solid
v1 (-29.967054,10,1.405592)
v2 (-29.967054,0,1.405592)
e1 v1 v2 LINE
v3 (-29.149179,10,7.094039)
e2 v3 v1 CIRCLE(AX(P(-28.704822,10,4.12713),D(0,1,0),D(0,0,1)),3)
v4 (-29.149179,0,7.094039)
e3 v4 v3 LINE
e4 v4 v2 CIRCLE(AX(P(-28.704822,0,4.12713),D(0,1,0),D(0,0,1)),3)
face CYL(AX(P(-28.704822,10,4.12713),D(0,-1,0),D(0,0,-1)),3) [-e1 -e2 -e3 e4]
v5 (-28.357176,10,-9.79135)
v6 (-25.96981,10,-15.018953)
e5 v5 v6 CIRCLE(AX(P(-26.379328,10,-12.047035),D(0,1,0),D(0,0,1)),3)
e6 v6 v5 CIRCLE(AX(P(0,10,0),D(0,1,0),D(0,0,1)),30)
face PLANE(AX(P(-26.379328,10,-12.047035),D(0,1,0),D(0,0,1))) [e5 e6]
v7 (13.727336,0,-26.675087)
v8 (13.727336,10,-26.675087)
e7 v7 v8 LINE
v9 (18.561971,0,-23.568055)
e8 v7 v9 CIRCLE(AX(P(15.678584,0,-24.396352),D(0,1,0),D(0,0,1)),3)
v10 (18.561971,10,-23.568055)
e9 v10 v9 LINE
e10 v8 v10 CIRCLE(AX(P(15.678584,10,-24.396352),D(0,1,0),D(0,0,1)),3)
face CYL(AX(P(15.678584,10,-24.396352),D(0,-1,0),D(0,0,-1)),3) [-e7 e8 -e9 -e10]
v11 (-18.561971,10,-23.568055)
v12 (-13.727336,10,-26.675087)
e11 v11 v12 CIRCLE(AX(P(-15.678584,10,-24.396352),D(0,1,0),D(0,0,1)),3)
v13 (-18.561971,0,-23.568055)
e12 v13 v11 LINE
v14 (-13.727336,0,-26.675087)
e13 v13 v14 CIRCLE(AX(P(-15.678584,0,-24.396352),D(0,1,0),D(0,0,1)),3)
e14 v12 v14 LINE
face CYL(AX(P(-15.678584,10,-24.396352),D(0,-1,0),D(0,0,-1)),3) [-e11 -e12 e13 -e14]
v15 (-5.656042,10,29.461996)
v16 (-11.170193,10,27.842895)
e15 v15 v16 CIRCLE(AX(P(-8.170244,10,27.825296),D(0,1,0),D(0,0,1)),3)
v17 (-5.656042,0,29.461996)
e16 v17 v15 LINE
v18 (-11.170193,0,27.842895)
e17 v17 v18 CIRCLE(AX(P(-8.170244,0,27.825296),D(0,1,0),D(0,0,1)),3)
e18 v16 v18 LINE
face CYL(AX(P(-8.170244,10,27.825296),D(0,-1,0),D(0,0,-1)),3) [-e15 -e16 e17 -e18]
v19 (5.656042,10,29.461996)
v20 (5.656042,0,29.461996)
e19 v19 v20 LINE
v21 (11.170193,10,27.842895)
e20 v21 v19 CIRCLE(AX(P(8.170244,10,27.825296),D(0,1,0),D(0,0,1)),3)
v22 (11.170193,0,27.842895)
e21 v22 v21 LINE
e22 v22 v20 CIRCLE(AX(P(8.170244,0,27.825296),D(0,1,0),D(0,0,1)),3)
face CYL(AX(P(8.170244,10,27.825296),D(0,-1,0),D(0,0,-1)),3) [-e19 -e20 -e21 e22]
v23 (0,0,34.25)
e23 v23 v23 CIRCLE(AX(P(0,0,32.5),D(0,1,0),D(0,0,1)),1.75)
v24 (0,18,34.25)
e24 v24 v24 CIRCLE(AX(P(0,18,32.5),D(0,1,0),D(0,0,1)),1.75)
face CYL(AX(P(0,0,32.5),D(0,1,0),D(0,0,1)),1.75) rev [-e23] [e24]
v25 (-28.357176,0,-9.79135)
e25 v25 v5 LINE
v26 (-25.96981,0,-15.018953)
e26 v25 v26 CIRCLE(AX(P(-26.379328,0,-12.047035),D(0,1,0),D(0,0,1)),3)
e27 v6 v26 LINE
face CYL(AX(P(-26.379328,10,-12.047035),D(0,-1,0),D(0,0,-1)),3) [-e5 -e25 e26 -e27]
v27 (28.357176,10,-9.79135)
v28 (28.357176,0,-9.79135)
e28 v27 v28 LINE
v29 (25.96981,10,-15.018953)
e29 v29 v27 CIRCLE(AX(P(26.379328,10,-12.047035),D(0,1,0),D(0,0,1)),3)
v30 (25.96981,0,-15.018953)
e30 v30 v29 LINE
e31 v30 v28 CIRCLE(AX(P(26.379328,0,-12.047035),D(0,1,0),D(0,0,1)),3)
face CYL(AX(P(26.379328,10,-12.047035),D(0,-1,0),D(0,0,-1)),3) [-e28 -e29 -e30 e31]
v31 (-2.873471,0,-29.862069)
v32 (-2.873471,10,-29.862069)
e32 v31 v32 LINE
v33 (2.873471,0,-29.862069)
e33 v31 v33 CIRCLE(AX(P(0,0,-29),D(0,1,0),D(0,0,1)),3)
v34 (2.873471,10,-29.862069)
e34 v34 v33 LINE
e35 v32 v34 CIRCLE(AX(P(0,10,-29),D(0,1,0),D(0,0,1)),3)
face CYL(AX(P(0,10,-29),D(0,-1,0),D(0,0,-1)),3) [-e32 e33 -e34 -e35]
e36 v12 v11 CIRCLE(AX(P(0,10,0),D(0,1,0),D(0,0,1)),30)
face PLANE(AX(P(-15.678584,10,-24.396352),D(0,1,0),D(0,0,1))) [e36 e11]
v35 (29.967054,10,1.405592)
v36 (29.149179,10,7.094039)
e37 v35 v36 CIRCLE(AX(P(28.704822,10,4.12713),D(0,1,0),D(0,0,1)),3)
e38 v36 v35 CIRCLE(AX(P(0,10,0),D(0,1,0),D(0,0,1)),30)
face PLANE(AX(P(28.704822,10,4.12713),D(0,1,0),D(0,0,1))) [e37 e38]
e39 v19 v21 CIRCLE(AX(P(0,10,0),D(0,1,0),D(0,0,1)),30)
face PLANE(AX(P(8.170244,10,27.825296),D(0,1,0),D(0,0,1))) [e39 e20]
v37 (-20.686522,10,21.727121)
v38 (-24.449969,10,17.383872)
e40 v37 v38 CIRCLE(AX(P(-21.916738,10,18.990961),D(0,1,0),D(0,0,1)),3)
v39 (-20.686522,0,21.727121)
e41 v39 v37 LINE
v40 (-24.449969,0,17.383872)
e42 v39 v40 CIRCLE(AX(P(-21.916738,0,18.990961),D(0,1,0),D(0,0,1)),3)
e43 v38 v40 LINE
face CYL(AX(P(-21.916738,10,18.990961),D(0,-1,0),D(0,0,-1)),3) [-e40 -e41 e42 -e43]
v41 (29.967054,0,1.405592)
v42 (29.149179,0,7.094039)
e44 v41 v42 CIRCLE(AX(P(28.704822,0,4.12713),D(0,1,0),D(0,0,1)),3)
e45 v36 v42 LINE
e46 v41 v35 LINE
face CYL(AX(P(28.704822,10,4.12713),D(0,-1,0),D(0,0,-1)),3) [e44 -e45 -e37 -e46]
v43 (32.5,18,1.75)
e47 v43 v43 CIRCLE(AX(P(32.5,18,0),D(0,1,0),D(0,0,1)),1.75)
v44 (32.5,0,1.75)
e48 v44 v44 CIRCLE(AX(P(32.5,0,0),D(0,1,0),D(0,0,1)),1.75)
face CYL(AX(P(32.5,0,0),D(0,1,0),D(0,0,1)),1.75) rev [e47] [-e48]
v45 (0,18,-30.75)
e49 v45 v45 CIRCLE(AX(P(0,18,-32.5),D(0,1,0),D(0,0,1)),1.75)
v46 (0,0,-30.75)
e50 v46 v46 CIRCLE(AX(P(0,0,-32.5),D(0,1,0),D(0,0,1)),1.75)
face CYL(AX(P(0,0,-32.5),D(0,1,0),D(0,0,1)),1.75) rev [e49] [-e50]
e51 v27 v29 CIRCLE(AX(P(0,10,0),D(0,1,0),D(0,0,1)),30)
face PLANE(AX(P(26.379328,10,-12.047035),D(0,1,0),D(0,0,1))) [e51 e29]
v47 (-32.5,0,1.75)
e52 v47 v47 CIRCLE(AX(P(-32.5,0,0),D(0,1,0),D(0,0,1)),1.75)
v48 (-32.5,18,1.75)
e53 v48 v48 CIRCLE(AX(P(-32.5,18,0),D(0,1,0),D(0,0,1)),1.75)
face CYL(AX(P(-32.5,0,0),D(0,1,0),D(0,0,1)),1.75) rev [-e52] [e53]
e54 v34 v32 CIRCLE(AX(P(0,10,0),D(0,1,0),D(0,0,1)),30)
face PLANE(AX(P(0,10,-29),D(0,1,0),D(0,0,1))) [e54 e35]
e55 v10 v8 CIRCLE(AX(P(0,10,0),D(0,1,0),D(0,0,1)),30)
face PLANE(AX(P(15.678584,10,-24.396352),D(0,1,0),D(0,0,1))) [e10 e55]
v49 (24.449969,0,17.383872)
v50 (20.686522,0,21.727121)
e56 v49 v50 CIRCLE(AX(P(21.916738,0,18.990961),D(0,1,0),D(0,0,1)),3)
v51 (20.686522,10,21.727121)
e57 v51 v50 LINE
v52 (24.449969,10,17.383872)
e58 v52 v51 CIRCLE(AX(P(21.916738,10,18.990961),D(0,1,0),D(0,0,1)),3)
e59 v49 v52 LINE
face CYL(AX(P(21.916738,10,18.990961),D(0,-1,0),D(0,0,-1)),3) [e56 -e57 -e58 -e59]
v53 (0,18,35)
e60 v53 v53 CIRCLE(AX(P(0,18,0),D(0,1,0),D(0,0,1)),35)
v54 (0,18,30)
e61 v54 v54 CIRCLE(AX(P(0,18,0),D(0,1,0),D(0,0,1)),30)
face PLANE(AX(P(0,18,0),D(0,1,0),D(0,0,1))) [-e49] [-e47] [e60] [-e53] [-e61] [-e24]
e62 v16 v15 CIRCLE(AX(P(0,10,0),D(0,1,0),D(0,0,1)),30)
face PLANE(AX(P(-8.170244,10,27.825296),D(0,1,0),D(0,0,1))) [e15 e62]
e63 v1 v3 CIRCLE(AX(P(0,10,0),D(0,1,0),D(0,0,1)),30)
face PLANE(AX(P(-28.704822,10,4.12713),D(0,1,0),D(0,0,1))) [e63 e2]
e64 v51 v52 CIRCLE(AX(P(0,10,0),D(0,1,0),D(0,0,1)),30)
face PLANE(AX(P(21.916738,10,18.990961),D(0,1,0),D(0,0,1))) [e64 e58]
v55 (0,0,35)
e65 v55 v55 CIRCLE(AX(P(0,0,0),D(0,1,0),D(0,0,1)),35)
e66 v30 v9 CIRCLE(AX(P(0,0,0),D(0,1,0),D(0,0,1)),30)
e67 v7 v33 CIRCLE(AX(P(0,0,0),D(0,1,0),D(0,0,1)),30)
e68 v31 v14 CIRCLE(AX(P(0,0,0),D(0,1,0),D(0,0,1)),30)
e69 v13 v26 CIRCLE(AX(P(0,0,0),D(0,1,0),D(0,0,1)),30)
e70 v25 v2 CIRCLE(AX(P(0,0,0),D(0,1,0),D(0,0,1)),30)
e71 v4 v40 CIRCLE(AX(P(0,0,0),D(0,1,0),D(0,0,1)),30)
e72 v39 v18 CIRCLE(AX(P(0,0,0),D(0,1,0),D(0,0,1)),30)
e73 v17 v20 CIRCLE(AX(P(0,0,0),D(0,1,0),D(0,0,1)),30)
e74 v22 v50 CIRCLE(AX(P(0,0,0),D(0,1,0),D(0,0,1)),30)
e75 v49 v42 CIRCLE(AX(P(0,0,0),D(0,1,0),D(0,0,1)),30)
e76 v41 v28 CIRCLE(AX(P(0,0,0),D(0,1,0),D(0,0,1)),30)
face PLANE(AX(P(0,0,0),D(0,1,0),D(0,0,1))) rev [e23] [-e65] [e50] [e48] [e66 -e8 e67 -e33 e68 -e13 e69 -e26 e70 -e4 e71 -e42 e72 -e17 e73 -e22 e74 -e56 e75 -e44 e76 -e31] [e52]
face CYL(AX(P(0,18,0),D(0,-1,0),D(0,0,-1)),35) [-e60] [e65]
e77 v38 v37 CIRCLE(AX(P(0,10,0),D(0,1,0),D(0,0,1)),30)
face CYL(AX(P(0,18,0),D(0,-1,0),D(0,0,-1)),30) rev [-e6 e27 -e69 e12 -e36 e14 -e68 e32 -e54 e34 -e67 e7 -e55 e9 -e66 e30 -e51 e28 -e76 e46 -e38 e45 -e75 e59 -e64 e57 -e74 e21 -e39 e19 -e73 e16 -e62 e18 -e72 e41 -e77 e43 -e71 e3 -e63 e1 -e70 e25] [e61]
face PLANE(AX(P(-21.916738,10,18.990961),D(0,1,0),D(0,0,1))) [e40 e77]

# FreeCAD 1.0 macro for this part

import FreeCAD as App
import Part
import Sketcher

V = App.Vector

doc = App.newDocument("Part")
body = doc.addObject("PartDesign::Body", "Body")

sketch1 = body.newObject("Sketcher::SketchObject", "Sketch")
sketch1.AttachmentSupport = (doc.getObject("XZ_Plane"), [""])
sketch1.MapMode = "FlatFace"
sketch1.addGeometry(Part.Circle(V(0, 0, 0), V(0, 0, 1), 35), False)
sketch1.addGeometry(Part.Circle(V(0, 0, 0), V(0, 0, 1), 30), False)
sketch1.addConstraint(Sketcher.Constraint("Coincident", 0, 3, -1, 1))
sketch1.addConstraint(Sketcher.Constraint("Coincident", 1, 3, -1, 1))
sketch1.addConstraint(Sketcher.Constraint("Diameter", 0, 70.0))
sketch1.addConstraint(Sketcher.Constraint("Diameter", 1, 60.0))
pad1 = body.newObject("PartDesign::Pad", "Pad")
pad1.Profile = sketch1
pad1.Length = 18
pad1.Reversed = True

sketch2 = body.newObject("Sketcher::SketchObject", "Sketch001")
sketch2.AttachmentSupport = (doc.getObject("XZ_Plane"), [""])
sketch2.MapMode = "FlatFace"
sketch2.addGeometry(Part.Circle(V(0, -29, 0), V(0, 0, 1), 3), False)
sketch2.addGeometry(Part.Circle(V(15.7, -24.4, 0), V(0, 0, 1), 3), False)
sketch2.addGeometry(Part.Circle(V(26.4, -12, 0), V(0, 0, 1), 3), False)
sketch2.addGeometry(Part.Circle(V(28.7, 4.1, 0), V(0, 0, 1), 3), False)
sketch2.addGeometry(Part.Circle(V(21.9, 19, 0), V(0, 0, 1), 3), False)
sketch2.addGeometry(Part.Circle(V(8.2, 27.8, 0), V(0, 0, 1), 3), False)
sketch2.addGeometry(Part.Circle(V(-8.2, 27.8, 0), V(0, 0, 1), 3), False)
sketch2.addGeometry(Part.Circle(V(-21.9, 19, 0), V(0, 0, 1), 3), False)
sketch2.addGeometry(Part.Circle(V(-28.7, 4.1, 0), V(0, 0, 1), 3), False)
sketch2.addGeometry(Part.Circle(V(-26.4, -12, 0), V(0, 0, 1), 3), False)
sketch2.addGeometry(Part.Circle(V(-15.7, -24.4, 0), V(0, 0, 1), 3), False)
sketch2.addConstraint(Sketcher.Constraint("Equal", 0, 1))
sketch2.addConstraint(Sketcher.Constraint("Equal", 1, 2))
sketch2.addConstraint(Sketcher.Constraint("Equal", 2, 3))
sketch2.addConstraint(Sketcher.Constraint("Equal", 3, 4))
sketch2.addConstraint(Sketcher.Constraint("Equal", 4, 5))
sketch2.addConstraint(Sketcher.Constraint("Equal", 5, 6))
sketch2.addConstraint(Sketcher.Constraint("Equal", 6, 7))
sketch2.addConstraint(Sketcher.Constraint("Equal", 7, 8))
sketch2.addConstraint(Sketcher.Constraint("Equal", 8, 9))
sketch2.addConstraint(Sketcher.Constraint("Equal", 9, 10))
sketch2.addConstraint(Sketcher.Constraint("Symmetric", 5, 3, 6, 3, -2))
sketch2.addConstraint(Sketcher.Constraint("Symmetric", 4, 3, 7, 3, -2))
sketch2.addConstraint(Sketcher.Constraint("Symmetric", 3, 3, 8, 3, -2))
sketch2.addConstraint(Sketcher.Constraint("Symmetric", 2, 3, 9, 3, -2))
sketch2.addConstraint(Sketcher.Constraint("Symmetric", 1, 3, 10, 3, -2))
sketch2.addConstraint(Sketcher.Constraint("PointOnObject", 0, 3, -2))
sketch2.addConstraint(Sketcher.Constraint("Diameter", 0, 6.0))
sketch2.addConstraint(Sketcher.Constraint("DistanceY", 0, 3, -1, 1, 29.0))
sketch2.addConstraint(Sketcher.Constraint("DistanceX", -1, 1, 3, 3, 28.704822))
sketch2.addConstraint(Sketcher.Constraint("DistanceY", -1, 1, 3, 3, 4.12713))
sketch2.addConstraint(Sketcher.Constraint("DistanceY", -1, 1, 4, 3, 18.990961))
sketch2.addConstraint(Sketcher.Constraint("DistanceX", 1, 3, 3, 3, 13.026238))
sketch2.addConstraint(Sketcher.Constraint("DistanceX", 4, 3, 2, 3, 4.46259))
sketch2.addConstraint(Sketcher.Constraint("DistanceY", 2, 3, 5, 3, 39.872332))
sketch2.addConstraint(Sketcher.Constraint("DistanceX", 5, 3, 1, 3, 7.50834))
sketch2.addConstraint(Sketcher.Constraint("DistanceY", 1, 3, 5, 3, 52.221649))
sketch2.addConstraint(Sketcher.Constraint("DistanceX", 6, 3, 4, 3, 30.086982))
sketch2.addConstraint(Sketcher.Constraint("DistanceY", 1, 3, -1, 1, 24.396352))
pad2 = body.newObject("PartDesign::Pad", "Pad001")
pad2.Profile = sketch2
pad2.Length = 10
pad2.Reversed = True

sketch3 = body.newObject("Sketcher::SketchObject", "Sketch002")
sketch3.AttachmentSupport = (doc.getObject("XZ_Plane"), [""])
sketch3.MapMode = "FlatFace"
sketch3.AttachmentOffset = App.Placement(V(0, 0, -18), App.Rotation())
sketch3.addGeometry(Part.Circle(V(0, -32.5, 0), V(0, 0, 1), 1.8), False)
sketch3.addGeometry(Part.Circle(V(32.5, 0, 0), V(0, 0, 1), 1.8), False)
sketch3.addGeometry(Part.Circle(V(0, 32.5, 0), V(0, 0, 1), 1.8), False)
sketch3.addGeometry(Part.Circle(V(-32.5, 0, 0), V(0, 0, 1), 1.8), False)
sketch3.addConstraint(Sketcher.Constraint("Equal", 0, 1))
sketch3.addConstraint(Sketcher.Constraint("Equal", 1, 2))
sketch3.addConstraint(Sketcher.Constraint("Equal", 2, 3))
sketch3.addConstraint(Sketcher.Constraint("Symmetric", 0, 3, 2, 3, -1, 1))
sketch3.addConstraint(Sketcher.Constraint("Symmetric", 1, 3, 3, 3, -1, 1))
sketch3.addConstraint(Sketcher.Constraint("PointOnObject", 0, 3, -2))
sketch3.addConstraint(Sketcher.Constraint("PointOnObject", 1, 3, -1))
sketch3.addConstraint(Sketcher.Constraint("Diameter", 0, 3.5))
sketch3.addConstraint(Sketcher.Constraint("DistanceY", 0, 3, 2, 3, 65.0))
sketch3.addConstraint(Sketcher.Constraint("DistanceX", 3, 3, 1, 3, 65.0))
pocket1 = body.newObject("PartDesign::Pocket", "Pocket")
pocket1.Profile = sketch3
pocket1.Type = "ThroughAll"
pocket1.Reversed = True

doc.recompute()
